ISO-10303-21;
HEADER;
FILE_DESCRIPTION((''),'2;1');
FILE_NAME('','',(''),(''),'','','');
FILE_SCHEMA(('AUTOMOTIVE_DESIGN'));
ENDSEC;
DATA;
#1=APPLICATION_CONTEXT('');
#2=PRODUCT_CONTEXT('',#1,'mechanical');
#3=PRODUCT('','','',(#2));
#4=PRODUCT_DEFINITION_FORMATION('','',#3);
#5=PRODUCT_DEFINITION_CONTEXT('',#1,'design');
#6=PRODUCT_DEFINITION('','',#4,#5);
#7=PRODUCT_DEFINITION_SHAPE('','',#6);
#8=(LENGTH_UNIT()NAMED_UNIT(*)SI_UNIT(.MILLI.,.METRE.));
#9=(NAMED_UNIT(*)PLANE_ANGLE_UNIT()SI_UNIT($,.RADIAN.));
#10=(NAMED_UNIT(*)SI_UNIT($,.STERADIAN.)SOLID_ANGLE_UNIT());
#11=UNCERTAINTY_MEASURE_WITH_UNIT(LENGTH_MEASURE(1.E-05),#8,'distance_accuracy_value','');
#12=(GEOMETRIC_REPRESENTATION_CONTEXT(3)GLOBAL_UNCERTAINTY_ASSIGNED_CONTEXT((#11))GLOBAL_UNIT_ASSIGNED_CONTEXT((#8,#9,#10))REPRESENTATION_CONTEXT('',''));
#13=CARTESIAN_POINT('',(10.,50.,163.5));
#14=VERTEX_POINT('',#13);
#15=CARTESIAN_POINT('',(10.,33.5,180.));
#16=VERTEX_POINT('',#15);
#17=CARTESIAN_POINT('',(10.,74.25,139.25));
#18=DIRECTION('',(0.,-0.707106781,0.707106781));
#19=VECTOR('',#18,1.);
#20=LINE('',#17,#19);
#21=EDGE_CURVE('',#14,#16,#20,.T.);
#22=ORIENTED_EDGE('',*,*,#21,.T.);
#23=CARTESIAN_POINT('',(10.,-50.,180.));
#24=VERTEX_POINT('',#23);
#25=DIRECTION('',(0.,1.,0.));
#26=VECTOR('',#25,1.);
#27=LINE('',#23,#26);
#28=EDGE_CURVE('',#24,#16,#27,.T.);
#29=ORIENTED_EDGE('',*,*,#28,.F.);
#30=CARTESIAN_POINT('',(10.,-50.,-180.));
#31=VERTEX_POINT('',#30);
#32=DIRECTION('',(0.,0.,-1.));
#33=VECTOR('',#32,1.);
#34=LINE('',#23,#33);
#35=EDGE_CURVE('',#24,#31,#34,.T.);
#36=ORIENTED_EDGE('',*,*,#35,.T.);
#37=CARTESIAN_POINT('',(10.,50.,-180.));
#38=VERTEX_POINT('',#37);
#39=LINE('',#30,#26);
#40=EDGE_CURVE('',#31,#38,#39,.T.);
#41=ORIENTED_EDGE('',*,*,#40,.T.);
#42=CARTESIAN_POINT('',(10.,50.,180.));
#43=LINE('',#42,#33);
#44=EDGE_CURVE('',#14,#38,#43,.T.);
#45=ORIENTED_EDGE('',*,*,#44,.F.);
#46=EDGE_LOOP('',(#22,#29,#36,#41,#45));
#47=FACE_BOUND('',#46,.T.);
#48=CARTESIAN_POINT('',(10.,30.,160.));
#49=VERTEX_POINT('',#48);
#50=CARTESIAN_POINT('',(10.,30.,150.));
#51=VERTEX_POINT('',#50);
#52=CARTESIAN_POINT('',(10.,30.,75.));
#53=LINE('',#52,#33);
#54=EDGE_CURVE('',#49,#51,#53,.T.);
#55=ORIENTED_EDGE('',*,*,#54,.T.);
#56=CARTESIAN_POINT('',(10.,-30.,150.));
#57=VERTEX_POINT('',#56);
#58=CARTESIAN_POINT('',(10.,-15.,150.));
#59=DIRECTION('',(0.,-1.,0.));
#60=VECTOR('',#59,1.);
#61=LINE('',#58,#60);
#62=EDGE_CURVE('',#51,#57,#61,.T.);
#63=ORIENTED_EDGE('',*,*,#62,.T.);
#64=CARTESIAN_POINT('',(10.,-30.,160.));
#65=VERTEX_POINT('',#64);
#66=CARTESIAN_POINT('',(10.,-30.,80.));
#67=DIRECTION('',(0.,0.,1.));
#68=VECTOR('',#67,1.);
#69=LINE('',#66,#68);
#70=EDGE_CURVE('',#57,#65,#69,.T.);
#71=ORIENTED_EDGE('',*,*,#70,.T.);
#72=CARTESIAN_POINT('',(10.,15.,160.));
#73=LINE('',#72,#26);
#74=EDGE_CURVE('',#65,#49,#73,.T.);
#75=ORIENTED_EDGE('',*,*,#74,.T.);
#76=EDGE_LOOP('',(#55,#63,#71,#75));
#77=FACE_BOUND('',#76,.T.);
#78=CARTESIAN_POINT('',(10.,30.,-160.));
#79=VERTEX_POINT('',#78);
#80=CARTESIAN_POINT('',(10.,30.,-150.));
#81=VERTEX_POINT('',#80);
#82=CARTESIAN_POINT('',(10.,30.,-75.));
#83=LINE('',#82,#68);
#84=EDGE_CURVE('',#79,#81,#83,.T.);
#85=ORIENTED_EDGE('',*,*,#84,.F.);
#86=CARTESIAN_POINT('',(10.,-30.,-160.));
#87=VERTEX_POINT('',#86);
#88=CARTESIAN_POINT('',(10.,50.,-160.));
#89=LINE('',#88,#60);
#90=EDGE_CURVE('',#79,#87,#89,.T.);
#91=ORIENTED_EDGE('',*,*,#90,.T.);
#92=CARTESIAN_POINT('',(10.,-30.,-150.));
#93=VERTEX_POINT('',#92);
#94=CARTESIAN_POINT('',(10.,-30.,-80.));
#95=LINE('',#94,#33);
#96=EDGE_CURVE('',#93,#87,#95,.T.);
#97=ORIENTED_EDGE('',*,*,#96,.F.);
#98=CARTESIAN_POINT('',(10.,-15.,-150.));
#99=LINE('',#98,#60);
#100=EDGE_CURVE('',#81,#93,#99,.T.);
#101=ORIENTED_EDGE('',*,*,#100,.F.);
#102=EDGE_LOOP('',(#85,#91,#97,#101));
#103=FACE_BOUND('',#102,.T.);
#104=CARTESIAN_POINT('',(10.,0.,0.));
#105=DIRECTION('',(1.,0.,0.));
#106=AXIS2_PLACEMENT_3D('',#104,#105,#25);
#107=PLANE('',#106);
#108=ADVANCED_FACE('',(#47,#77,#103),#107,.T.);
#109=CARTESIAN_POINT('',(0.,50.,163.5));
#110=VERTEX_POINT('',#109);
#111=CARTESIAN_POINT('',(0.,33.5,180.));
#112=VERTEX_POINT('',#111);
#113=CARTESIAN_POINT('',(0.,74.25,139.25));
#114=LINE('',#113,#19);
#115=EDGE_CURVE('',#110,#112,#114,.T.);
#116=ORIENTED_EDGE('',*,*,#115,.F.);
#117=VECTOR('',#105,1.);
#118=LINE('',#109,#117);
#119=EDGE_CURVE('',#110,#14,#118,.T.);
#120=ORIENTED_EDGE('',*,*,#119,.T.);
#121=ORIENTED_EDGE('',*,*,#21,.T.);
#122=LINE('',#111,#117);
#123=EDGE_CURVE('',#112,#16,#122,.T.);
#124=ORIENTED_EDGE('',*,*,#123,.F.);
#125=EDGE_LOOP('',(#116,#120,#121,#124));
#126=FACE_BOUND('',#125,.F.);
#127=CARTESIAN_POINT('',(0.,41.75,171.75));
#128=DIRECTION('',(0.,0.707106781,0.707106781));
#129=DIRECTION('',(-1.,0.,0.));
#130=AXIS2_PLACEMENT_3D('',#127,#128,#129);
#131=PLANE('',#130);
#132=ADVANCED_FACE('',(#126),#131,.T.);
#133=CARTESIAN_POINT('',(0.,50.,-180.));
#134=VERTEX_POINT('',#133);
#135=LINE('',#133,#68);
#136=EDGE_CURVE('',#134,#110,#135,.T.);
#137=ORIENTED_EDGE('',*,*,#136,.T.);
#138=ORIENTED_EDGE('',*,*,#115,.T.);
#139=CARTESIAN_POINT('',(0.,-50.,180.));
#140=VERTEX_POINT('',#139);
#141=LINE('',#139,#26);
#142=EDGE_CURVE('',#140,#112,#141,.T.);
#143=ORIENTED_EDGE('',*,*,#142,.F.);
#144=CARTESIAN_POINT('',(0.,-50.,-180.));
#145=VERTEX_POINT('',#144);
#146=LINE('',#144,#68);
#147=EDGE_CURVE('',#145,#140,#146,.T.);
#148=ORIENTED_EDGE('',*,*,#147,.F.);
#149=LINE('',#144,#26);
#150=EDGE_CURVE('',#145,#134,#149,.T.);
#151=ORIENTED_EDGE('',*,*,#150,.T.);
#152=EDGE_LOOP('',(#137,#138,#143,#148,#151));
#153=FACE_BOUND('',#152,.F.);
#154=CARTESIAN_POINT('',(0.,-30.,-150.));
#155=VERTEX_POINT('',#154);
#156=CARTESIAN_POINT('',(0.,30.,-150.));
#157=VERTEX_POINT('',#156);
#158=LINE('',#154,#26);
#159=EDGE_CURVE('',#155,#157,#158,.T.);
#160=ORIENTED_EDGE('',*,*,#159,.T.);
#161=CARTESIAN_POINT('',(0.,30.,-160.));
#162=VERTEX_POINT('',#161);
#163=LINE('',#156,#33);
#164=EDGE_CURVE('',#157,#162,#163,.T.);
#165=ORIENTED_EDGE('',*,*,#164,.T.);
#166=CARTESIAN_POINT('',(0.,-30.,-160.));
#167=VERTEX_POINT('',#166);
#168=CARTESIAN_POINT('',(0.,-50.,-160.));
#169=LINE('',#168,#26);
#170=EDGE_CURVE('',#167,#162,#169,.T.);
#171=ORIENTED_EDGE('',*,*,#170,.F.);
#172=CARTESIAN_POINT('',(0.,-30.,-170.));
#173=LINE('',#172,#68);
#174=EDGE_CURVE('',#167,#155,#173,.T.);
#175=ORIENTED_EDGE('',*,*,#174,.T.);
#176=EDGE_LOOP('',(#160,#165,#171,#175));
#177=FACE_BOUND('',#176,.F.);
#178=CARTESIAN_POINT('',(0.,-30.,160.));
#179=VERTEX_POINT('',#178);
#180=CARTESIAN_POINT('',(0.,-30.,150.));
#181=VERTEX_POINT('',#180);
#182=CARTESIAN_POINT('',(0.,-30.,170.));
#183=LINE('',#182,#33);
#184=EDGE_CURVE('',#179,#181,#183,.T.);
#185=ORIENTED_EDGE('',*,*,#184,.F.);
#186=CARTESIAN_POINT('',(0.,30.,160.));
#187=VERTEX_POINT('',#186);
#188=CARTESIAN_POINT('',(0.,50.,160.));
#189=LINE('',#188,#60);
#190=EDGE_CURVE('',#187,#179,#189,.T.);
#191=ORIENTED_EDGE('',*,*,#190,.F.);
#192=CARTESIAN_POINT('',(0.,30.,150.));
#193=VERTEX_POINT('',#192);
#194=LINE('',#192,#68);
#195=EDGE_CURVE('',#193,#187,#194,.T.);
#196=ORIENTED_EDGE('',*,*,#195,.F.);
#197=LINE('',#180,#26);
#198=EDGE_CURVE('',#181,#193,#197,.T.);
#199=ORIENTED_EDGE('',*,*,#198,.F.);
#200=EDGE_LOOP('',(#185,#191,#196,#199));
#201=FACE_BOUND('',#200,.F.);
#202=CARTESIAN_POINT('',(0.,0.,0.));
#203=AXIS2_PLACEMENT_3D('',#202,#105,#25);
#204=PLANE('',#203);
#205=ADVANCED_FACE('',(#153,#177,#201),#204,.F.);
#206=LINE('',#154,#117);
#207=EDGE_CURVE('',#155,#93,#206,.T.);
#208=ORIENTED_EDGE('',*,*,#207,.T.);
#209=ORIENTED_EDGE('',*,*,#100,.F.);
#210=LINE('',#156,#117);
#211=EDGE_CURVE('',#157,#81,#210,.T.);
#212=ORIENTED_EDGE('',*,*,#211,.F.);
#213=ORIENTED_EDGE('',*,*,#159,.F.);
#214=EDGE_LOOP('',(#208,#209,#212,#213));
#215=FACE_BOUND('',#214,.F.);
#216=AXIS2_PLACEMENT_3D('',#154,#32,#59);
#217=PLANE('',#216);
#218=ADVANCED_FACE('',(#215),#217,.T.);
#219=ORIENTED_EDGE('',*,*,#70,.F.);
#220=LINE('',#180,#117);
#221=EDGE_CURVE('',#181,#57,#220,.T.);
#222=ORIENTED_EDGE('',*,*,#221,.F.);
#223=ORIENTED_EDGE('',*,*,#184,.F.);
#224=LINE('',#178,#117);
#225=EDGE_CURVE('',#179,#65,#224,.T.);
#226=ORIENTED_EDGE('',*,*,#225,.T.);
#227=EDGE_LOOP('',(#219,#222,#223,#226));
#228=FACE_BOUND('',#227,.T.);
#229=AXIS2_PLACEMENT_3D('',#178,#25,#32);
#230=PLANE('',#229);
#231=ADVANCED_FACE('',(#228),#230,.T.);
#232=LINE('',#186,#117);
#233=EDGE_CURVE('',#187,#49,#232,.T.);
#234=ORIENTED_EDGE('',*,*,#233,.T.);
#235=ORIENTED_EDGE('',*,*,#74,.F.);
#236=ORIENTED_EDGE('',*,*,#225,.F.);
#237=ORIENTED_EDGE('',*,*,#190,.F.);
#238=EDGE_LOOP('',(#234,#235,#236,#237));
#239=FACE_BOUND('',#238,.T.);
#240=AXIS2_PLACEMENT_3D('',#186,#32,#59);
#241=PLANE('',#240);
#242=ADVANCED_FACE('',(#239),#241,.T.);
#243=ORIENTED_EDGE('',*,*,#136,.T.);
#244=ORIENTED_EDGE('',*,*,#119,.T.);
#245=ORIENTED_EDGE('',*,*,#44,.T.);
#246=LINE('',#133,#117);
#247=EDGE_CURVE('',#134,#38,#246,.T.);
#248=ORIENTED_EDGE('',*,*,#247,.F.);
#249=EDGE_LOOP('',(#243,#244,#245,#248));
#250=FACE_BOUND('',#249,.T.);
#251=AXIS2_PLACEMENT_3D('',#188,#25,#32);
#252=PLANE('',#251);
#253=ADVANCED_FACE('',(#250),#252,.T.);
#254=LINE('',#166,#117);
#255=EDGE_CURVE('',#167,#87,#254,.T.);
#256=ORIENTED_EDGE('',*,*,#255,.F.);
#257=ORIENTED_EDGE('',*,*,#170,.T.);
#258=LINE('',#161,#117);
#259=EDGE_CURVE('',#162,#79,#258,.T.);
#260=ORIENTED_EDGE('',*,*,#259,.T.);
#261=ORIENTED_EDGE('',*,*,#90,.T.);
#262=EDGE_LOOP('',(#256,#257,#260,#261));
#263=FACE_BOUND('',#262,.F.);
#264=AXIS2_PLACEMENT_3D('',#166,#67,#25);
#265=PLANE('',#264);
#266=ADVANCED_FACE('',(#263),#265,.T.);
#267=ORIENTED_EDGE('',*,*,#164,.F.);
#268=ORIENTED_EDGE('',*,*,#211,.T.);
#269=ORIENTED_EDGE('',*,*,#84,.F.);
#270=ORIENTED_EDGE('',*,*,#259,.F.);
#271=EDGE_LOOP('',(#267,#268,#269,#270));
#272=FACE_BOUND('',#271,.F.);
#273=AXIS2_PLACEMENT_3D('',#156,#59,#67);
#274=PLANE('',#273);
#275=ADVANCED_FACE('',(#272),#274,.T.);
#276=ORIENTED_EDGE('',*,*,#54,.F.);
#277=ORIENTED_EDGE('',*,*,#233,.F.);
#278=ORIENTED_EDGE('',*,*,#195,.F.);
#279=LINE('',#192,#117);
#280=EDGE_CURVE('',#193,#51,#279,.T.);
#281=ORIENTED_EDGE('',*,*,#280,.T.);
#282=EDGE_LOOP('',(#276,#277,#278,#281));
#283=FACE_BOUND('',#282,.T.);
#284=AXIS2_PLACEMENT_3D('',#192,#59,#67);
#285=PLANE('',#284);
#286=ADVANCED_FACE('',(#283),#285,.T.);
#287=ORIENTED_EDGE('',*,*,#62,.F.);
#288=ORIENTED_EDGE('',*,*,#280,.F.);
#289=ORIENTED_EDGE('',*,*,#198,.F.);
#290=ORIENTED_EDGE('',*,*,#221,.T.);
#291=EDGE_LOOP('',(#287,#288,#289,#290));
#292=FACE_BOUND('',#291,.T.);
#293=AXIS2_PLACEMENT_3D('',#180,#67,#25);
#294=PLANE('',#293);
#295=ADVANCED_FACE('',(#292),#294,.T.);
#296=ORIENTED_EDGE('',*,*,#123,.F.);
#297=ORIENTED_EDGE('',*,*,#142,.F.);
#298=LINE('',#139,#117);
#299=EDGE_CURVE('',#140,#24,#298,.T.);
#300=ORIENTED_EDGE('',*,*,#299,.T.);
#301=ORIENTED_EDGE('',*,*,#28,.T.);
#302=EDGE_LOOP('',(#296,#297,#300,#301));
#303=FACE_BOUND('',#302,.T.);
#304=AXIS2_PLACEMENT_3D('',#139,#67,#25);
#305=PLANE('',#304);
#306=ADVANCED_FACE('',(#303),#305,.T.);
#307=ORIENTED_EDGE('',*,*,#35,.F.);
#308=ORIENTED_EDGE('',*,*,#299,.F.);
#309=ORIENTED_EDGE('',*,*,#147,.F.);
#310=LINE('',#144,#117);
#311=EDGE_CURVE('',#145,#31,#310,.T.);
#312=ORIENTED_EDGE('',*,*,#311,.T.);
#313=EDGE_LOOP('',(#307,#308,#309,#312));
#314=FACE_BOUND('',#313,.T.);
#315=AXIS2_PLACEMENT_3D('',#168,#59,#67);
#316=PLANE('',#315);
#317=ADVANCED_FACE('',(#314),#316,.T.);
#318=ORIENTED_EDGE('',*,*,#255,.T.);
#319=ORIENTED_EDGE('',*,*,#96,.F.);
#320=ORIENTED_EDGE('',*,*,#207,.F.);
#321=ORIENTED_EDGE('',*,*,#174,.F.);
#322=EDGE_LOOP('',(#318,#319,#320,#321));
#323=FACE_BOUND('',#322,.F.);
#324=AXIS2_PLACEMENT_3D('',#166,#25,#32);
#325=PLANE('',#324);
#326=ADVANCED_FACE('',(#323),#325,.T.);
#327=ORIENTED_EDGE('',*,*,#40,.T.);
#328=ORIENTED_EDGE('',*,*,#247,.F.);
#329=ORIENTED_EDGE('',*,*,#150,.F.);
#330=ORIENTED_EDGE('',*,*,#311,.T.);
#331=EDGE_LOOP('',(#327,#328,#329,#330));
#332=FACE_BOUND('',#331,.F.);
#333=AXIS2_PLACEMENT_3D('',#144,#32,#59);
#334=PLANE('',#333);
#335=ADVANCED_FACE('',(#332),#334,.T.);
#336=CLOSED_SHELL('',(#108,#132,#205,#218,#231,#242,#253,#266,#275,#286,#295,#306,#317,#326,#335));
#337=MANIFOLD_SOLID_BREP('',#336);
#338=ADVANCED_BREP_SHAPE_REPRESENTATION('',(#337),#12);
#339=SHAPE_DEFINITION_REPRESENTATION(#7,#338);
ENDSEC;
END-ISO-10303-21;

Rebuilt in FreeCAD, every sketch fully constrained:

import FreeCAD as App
import Part
import Sketcher

V = App.Vector


def edges_at(feature, points):
    """Names of the edges that pass closest to the given points."""
    edges = feature.Shape.Edges
    near = lambda p: min(range(len(edges)), key=lambda i: edges[i].distToShape(Part.Vertex(*p))[0])
    return sorted({f"Edge{near(p) + 1}" for p in points})


def add_polygon(sketch, points):
    """Adds a closed chain of lines whose ends are joined by coincident constraints."""
    first, n = sketch.GeometryCount, len(points)
    for a, b in zip(points, points[1:] + points[:1]):
        sketch.addGeometry(Part.LineSegment(App.Vector(*a, 0), App.Vector(*b, 0)), False)
    for i in range(n):
        sketch.addConstraint(Sketcher.Constraint("Coincident", first + i, 2, first + (i + 1) % n, 1))

doc = App.newDocument("Part")
body = doc.addObject("PartDesign::Body", "Body")

# Sketch on YZ plane
sketch1 = doc.addObject("Sketcher::SketchObject", "Sketch")
body.addObject(sketch1)
sketch1.AttachmentSupport = (doc.YZ_Plane, [""])
sketch1.MapMode = "FlatFace"
add_polygon(sketch1, [(50, 160), (-50, 160), (-50, -160), (50, -160)])  # lines 0-3
sketch1.addConstraint([
    Sketcher.Constraint("Horizontal", 0),
    Sketcher.Constraint("Vertical", 1),
    Sketcher.Constraint("Horizontal", 2),
    Sketcher.Constraint("Vertical", 3),
    Sketcher.Constraint("Symmetric", 0, 2, 2, 2, -1, 1),
    Sketcher.Constraint("DistanceX", 0, 2, 0, 1, 100.0),
    Sketcher.Constraint("DistanceY", 1, 2, 1, 1, 320.0),
])
pad1 = doc.addObject("PartDesign::Pad", "Pad")
body.addObject(pad1)
pad1.Profile = sketch1
pad1.Length = 10

# Sketch on YZ plane
sketch2 = doc.addObject("Sketcher::SketchObject", "Sketch001")
body.addObject(sketch2)
sketch2.AttachmentSupport = (doc.YZ_Plane, [""])
sketch2.MapMode = "FlatFace"
add_polygon(sketch2, [(-50, 160), (-50, 180), (50, 180), (50, 160)])  # lines 0-3
sketch2.addConstraint([
    Sketcher.Constraint("Vertical", 0),
    Sketcher.Constraint("Horizontal", 1),
    Sketcher.Constraint("Vertical", 2),
    Sketcher.Constraint("Horizontal", 3),
    Sketcher.Constraint("DistanceY", 0, 1, 0, 2, 20.0),
    Sketcher.Constraint("DistanceX", 1, 1, 1, 2, 100.0),
    Sketcher.Constraint("DistanceX", 0, 2, -1, 1, 50.0),
    Sketcher.Constraint("DistanceY", -1, 1, 0, 2, 180.0),
])
pad2 = doc.addObject("PartDesign::Pad", "Pad001")
body.addObject(pad2)
pad2.Profile = sketch2
pad2.Length = 10

# Sketch on YZ plane
sketch3 = doc.addObject("Sketcher::SketchObject", "Sketch002")
body.addObject(sketch3)
sketch3.AttachmentSupport = (doc.YZ_Plane, [""])
sketch3.MapMode = "FlatFace"
add_polygon(sketch3, [(-30, 150), (-30, 160), (30, 160), (30, 150)])  # lines 0-3
sketch3.addConstraint([
    Sketcher.Constraint("Vertical", 0),
    Sketcher.Constraint("Horizontal", 1),
    Sketcher.Constraint("Vertical", 2),
    Sketcher.Constraint("Horizontal", 3),
    Sketcher.Constraint("DistanceX", 1, 1, 1, 2, 60.0),
    Sketcher.Constraint("DistanceY", 0, 1, 0, 2, 10.0),
    Sketcher.Constraint("DistanceX", 0, 2, -1, 1, 30.0),
    Sketcher.Constraint("DistanceY", -1, 1, 0, 2, 160.0),
])
pocket1 = doc.addObject("PartDesign::Pocket", "Pocket")
body.addObject(pocket1)
pocket1.Profile = sketch3
pocket1.Length = 36.25
pocket1.Reversed = True
doc.recompute()

mirrored = doc.addObject("PartDesign::Mirrored", "Mirrored")
body.addObject(mirrored)
mirrored.Originals = [pocket1, pad2]
mirrored.MirrorPlane = (doc.XY_Plane, [""])
body.Tip = mirrored
doc.recompute()

chamfer = doc.addObject("PartDesign::Chamfer", "Chamfer")
body.addObject(chamfer)
chamfer.Base = (mirrored, edges_at(mirrored, [(5, 50, 180)]))
chamfer.Size = 16.5

doc.recompute()
